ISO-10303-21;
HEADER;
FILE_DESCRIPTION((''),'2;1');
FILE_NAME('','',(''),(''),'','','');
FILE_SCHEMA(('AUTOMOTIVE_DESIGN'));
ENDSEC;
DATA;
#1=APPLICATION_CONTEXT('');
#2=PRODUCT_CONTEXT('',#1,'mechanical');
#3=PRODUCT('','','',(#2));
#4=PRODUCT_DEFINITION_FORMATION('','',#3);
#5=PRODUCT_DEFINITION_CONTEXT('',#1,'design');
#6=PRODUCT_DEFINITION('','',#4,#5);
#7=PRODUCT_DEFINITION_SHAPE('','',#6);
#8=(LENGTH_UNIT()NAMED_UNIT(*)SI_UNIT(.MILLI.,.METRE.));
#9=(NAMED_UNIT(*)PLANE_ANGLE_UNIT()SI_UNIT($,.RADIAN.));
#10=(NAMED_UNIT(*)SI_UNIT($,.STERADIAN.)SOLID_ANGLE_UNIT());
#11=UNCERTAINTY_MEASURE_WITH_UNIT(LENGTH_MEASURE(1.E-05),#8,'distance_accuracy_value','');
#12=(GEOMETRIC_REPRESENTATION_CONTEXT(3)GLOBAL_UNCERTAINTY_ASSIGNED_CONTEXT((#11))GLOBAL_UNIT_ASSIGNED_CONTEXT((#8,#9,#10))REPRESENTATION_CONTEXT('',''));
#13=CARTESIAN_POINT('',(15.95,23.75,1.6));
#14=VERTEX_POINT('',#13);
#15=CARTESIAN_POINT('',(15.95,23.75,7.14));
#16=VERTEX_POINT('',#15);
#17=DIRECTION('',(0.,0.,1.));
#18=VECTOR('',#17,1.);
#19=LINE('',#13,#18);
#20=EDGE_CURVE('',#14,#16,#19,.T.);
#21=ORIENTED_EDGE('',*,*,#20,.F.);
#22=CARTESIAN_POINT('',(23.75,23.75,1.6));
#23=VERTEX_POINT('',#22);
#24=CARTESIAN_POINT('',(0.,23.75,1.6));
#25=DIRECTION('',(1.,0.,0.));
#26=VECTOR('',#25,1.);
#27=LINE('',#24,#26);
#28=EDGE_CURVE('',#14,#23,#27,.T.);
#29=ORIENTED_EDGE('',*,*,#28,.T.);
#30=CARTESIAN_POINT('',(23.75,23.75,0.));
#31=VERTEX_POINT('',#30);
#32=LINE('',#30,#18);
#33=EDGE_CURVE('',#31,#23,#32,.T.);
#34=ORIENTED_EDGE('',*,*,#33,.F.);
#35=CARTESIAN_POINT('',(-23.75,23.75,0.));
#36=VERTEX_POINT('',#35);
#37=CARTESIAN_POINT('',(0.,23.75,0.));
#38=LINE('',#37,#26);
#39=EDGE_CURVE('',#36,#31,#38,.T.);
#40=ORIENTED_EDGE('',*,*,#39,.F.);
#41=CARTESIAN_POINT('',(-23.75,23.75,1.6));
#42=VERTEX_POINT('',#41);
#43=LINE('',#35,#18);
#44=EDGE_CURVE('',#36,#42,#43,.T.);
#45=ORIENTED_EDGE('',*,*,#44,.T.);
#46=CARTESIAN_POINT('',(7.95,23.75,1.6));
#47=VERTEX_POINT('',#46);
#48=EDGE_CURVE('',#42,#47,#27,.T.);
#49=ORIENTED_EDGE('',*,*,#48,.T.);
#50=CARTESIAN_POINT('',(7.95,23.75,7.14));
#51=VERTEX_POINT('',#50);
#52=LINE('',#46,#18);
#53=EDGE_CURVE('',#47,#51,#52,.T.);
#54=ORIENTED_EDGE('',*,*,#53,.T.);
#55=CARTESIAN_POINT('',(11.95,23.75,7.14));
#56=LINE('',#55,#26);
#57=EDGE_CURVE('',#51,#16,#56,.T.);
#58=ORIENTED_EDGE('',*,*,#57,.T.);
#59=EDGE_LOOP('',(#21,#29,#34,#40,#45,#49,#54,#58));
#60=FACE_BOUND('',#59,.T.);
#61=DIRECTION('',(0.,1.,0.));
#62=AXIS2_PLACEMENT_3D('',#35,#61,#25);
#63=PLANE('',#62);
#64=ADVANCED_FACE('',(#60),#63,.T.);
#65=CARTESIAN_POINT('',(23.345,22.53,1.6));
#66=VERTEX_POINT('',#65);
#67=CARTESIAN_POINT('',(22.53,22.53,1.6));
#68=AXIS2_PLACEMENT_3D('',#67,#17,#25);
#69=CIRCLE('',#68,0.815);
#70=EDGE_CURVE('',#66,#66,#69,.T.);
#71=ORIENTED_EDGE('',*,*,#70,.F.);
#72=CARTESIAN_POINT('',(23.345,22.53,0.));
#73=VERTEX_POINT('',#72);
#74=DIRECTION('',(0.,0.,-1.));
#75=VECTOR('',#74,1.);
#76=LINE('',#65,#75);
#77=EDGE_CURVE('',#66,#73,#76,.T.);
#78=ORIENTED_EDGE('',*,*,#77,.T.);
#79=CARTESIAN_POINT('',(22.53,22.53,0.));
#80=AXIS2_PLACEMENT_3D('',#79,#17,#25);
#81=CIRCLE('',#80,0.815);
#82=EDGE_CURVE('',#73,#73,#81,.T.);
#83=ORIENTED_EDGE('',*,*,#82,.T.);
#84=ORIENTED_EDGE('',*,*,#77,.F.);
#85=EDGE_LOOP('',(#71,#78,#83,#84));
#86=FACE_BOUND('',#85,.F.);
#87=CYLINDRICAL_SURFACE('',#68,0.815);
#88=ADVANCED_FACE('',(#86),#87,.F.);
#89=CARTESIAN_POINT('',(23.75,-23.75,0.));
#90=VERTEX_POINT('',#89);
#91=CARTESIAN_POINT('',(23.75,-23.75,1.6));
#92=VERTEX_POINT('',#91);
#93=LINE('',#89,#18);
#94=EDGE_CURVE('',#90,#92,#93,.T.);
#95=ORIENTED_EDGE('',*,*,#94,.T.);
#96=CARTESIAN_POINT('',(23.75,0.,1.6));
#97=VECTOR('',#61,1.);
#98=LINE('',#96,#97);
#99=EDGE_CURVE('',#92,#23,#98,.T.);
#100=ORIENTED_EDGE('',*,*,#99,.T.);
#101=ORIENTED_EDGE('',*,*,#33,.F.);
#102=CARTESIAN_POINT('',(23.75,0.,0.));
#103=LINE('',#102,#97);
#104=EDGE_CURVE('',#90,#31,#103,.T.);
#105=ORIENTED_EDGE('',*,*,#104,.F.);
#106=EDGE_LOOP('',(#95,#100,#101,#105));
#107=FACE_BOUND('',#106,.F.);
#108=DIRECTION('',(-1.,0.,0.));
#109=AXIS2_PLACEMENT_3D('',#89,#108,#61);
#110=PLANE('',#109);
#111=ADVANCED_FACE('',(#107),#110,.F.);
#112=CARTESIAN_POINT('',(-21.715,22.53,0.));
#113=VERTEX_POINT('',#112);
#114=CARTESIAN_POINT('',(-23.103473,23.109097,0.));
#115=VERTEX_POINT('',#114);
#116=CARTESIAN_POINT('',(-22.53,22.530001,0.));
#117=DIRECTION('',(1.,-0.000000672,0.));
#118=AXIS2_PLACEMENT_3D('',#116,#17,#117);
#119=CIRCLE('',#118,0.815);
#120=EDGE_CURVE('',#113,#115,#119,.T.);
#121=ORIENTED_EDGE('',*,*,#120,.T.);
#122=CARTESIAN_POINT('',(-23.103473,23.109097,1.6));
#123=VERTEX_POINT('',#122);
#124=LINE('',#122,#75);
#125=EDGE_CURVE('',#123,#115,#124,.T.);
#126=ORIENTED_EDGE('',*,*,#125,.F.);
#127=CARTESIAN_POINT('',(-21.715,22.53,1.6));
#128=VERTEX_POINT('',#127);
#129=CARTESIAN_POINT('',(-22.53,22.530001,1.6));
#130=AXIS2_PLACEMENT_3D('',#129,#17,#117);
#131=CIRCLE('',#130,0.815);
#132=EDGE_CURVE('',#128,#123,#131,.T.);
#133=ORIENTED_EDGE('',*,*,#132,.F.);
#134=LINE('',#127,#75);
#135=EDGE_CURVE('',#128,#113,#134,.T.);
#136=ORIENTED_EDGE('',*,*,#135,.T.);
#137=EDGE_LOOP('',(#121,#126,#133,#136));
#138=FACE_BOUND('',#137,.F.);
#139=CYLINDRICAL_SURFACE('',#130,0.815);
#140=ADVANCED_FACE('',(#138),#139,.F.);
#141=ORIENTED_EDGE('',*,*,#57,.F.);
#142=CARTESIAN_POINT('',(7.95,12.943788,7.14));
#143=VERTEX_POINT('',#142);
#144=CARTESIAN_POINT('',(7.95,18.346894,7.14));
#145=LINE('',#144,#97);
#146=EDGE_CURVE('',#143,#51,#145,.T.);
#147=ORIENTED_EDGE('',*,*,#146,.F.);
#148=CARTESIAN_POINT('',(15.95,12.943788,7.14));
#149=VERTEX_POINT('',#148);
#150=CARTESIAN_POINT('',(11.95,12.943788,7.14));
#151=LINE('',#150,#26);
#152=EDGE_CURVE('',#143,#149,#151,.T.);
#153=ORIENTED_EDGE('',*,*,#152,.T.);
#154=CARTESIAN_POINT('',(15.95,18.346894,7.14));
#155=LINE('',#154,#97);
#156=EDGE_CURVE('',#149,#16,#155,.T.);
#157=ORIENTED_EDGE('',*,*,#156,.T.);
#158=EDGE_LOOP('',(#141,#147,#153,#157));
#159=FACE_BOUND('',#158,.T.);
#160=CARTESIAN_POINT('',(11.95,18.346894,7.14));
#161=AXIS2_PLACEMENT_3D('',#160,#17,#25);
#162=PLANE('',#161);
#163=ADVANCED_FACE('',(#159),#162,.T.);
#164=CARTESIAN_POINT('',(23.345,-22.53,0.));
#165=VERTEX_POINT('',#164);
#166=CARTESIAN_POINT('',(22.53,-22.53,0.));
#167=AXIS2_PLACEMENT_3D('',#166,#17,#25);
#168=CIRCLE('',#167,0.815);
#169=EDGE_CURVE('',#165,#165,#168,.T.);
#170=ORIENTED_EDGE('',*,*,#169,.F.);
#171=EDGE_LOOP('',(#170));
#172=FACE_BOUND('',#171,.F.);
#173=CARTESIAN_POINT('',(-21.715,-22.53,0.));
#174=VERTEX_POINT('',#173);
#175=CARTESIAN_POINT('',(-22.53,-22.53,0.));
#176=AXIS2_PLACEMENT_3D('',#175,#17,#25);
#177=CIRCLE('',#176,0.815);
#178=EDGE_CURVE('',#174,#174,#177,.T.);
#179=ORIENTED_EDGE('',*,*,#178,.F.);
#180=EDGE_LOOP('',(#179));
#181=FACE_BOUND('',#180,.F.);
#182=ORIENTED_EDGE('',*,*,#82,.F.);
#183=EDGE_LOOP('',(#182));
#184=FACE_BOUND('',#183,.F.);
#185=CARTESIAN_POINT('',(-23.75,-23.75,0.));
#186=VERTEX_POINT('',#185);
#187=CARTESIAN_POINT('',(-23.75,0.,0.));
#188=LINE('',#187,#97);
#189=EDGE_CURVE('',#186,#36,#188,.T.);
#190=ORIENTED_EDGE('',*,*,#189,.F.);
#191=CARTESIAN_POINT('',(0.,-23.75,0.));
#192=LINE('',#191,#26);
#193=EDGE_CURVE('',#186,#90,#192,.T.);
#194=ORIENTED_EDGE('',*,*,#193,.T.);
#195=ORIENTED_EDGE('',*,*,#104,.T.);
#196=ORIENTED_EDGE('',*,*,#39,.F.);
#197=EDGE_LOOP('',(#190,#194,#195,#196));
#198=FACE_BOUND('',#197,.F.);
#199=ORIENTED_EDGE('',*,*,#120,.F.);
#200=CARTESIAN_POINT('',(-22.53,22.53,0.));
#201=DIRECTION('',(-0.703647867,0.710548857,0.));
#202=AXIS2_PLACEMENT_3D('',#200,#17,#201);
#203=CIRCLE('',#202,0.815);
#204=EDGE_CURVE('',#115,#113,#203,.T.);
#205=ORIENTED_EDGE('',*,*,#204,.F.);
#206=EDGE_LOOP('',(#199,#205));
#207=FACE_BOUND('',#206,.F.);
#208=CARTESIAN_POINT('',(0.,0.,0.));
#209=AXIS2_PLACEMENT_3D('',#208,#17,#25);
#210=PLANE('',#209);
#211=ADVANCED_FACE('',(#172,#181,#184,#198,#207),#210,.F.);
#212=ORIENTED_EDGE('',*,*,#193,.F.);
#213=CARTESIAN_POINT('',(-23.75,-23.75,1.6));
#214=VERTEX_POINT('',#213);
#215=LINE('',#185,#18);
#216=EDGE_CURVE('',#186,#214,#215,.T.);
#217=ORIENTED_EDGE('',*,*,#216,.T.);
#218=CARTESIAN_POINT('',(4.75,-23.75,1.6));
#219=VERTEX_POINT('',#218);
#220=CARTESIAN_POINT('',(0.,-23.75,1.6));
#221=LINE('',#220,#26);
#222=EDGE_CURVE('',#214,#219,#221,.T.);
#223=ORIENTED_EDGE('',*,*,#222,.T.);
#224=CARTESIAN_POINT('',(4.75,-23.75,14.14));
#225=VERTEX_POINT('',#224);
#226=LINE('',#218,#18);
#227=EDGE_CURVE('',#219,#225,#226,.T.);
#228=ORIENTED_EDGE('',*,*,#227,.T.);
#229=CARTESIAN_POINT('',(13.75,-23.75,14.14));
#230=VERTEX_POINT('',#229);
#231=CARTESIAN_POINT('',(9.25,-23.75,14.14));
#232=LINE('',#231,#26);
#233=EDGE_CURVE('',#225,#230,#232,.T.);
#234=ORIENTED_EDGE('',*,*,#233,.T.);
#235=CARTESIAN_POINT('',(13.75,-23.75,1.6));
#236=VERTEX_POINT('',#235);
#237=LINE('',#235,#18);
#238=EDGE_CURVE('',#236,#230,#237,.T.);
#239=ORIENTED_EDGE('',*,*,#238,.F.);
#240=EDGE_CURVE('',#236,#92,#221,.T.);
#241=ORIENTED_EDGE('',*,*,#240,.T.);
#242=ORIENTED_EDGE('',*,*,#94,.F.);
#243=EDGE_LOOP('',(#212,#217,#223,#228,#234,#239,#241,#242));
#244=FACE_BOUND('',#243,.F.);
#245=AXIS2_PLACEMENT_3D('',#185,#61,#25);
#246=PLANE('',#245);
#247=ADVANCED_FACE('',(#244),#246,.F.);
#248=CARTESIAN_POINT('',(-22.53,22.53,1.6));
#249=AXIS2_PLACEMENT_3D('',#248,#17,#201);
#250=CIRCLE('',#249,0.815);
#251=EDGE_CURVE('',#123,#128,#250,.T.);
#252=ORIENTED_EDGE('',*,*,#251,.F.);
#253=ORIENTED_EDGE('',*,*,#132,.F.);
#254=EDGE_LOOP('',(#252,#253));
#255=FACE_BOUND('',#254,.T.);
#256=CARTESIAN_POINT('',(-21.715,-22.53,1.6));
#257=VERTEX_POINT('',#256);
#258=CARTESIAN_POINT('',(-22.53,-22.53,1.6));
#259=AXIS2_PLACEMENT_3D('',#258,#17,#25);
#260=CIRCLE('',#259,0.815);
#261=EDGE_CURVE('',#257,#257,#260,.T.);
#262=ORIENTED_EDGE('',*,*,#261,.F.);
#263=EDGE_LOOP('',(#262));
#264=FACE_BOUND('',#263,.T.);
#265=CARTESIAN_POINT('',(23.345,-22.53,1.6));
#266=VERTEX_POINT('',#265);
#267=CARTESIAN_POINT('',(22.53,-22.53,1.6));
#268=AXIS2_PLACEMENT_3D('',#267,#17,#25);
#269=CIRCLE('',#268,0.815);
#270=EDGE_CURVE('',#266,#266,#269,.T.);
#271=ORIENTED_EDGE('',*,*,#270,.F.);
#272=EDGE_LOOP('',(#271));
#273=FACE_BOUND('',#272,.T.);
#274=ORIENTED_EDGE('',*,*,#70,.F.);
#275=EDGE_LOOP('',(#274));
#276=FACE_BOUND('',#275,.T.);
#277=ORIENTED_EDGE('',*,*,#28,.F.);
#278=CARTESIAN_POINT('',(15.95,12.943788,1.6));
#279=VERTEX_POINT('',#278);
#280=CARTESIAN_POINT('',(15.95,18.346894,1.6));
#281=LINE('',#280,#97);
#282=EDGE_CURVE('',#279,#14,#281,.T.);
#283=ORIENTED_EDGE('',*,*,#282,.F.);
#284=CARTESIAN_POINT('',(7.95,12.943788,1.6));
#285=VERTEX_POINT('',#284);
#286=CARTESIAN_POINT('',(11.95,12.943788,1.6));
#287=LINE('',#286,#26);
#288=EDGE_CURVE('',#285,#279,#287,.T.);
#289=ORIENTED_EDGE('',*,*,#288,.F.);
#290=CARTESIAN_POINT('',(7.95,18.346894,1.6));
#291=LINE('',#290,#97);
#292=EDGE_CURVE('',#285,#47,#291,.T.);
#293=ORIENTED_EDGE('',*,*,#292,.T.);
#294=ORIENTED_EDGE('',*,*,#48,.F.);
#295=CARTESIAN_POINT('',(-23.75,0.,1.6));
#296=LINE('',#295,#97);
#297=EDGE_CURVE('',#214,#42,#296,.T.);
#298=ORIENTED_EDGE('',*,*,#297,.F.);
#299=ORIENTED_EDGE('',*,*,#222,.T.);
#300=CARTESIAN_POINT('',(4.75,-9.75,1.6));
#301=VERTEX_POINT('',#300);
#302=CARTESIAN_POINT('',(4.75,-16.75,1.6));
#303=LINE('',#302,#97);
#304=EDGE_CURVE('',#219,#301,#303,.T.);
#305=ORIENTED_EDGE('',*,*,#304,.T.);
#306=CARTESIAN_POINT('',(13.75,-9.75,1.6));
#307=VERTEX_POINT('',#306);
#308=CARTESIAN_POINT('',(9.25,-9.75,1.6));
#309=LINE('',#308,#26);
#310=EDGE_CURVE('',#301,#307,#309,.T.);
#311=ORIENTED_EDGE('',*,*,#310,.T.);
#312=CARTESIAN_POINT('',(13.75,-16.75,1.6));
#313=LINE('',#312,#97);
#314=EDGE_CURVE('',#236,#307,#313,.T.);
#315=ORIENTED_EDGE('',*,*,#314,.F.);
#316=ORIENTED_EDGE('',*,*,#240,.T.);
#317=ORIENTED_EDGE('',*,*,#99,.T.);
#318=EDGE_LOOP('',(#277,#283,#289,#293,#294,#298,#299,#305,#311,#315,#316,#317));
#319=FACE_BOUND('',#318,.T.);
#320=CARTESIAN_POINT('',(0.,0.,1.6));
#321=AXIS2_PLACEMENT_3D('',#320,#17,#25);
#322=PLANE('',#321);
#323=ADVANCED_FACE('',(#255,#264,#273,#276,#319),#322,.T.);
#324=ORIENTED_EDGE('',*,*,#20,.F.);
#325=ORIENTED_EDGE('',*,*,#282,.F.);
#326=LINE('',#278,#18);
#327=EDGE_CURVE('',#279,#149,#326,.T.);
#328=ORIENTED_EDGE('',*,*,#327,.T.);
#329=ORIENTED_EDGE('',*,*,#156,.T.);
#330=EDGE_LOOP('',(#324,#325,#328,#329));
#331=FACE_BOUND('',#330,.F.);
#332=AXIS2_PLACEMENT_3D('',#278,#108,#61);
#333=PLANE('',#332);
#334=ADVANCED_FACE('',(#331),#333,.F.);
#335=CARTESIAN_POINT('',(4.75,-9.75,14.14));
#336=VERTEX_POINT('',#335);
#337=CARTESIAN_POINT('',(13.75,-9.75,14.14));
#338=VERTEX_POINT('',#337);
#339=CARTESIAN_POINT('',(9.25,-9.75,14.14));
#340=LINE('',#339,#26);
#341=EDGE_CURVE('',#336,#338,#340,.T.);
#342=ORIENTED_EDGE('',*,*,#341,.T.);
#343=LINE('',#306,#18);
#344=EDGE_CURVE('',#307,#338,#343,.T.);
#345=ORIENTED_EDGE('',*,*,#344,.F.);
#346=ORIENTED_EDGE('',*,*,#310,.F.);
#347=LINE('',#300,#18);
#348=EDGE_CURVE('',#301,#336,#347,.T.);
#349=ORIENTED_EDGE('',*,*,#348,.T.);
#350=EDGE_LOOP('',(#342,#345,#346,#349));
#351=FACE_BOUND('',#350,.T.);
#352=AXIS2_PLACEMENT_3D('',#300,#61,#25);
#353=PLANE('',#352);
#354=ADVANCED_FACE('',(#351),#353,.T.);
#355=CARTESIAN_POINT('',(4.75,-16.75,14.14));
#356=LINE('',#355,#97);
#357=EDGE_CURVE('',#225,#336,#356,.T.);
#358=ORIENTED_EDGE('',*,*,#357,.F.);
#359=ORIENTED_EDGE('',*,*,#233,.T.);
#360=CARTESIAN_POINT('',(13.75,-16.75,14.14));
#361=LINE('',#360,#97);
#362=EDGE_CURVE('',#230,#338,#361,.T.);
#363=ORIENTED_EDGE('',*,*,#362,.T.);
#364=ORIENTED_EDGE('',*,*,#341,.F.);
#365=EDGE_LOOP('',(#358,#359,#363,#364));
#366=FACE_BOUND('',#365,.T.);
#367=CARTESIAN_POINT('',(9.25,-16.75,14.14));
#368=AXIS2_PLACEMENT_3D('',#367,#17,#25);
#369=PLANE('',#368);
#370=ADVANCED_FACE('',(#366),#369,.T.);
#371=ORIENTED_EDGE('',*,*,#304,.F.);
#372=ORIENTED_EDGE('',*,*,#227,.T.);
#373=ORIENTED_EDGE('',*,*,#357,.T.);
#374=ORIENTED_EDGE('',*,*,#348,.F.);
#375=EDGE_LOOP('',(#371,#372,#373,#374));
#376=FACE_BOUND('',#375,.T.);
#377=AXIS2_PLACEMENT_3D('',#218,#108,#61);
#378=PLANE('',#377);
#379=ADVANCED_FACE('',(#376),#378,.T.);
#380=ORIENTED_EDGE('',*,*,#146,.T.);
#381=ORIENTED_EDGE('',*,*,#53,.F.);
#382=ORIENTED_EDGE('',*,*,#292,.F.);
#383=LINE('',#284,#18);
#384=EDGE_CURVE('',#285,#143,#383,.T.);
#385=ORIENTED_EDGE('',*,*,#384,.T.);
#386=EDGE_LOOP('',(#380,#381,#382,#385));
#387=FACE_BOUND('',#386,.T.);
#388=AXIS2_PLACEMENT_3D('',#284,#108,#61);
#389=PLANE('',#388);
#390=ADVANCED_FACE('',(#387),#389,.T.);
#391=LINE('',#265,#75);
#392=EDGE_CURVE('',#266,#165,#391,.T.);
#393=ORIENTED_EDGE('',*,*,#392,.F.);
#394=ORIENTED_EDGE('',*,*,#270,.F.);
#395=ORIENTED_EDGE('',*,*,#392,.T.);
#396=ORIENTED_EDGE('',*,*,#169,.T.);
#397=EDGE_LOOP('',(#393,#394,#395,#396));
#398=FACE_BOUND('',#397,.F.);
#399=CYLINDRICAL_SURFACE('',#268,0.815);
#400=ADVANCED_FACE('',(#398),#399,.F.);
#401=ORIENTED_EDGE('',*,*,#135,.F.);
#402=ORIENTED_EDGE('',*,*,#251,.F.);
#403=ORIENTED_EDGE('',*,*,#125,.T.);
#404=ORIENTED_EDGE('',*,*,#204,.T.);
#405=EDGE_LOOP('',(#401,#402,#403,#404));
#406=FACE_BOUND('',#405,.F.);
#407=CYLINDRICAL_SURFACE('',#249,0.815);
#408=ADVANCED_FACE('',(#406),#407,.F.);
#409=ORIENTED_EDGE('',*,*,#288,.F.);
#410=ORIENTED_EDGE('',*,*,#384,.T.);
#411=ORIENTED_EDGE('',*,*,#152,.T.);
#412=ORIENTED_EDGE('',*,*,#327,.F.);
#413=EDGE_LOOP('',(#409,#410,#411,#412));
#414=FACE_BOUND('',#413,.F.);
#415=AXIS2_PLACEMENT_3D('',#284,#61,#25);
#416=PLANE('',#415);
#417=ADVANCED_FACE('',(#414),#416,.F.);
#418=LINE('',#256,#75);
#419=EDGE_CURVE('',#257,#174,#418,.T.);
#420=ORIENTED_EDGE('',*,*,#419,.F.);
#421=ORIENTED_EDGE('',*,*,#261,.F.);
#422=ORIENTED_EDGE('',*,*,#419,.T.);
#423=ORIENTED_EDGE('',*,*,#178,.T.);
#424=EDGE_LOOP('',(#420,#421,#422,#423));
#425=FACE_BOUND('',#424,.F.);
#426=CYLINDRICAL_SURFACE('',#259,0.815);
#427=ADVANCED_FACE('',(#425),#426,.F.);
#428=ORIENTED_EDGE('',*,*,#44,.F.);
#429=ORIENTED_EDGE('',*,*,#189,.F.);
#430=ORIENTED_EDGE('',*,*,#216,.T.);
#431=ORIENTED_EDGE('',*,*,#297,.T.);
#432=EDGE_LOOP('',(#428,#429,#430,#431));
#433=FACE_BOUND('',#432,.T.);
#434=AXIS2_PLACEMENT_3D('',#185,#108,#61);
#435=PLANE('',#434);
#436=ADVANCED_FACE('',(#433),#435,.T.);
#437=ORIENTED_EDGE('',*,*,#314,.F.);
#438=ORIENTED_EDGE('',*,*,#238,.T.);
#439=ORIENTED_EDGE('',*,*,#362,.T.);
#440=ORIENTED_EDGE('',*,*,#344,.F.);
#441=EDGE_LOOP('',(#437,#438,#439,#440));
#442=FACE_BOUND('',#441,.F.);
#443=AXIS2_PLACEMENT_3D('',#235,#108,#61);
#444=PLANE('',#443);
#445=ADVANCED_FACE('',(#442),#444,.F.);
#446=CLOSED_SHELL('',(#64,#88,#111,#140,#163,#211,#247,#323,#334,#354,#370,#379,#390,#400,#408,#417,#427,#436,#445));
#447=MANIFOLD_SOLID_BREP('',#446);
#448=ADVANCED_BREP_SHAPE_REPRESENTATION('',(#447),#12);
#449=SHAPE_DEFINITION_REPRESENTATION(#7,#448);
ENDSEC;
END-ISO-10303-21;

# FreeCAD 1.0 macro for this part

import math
import FreeCAD as App
import Part
import Sketcher
Q = App.Units.Quantity


def add_polygon(sketch, points):
    """Adds a closed chain of lines whose ends are joined by coincident constraints."""
    first, n = sketch.GeometryCount, len(points)
    for a, b in zip(points, points[1:] + points[:1]):
        sketch.addGeometry(Part.LineSegment(App.Vector(*a, 0), App.Vector(*b, 0)), False)
    for i in range(n):
        sketch.addConstraint(Sketcher.Constraint("Coincident", first + i, 2, first + (i + 1) % n, 1))

doc = App.newDocument("Part")
body = doc.addObject("PartDesign::Body", "Body")

sketch1 = body.newObject("Sketcher::SketchObject", "Sketch")
sketch1.AttachmentSupport = (doc.getObject("XY_Plane"), [""])
sketch1.MapMode = "FlatFace"
add_polygon(sketch1, [(-24, 24), (-24, -24), (24, -24), (24, 24)])
sketch1.addConstraint(Sketcher.Constraint("Vertical", 0))
sketch1.addConstraint(Sketcher.Constraint("Horizontal", 1))
sketch1.addConstraint(Sketcher.Constraint("Vertical", 2))
sketch1.addConstraint(Sketcher.Constraint("Horizontal", 3))
sketch1.addConstraint(Sketcher.Constraint("Symmetric", 0, 2, 2, 2, -1, 1))
sketch1.addConstraint(Sketcher.Constraint("Equal", 3, 0))
sketch1.addConstraint(Sketcher.Constraint("DistanceX", 1, 1, 1, 2, Q("47.5 mm")))
pad1 = body.newObject("PartDesign::Pad", "Pad")
pad1.Profile = sketch1
pad1.Length = 1.6

sketch2 = body.newObject("Sketcher::SketchObject", "Sketch001")
sketch2.AttachmentSupport = (doc.getObject("XY_Plane"), [""])
sketch2.MapMode = "FlatFace"
sketch2.AttachmentOffset = App.Placement(App.Vector(0, 0, 1.6), App.Rotation())
add_polygon(sketch2, [(5, -10), (5, -24), (14, -24), (14, -10)])
sketch2.addConstraint(Sketcher.Constraint("Vertical", 0))
sketch2.addConstraint(Sketcher.Constraint("Horizontal", 1))
sketch2.addConstraint(Sketcher.Constraint("Vertical", 2))
sketch2.addConstraint(Sketcher.Constraint("Horizontal", 3))
sketch2.addConstraint(Sketcher.Constraint("DistanceX", 1, 1, 1, 2, Q("9 mm")))
sketch2.addConstraint(Sketcher.Constraint("DistanceY", 0, 2, 0, 1, Q("14 mm")))
sketch2.addConstraint(Sketcher.Constraint("DistanceX", -1, 1, 0, 2, Q("4.75 mm")))
sketch2.addConstraint(Sketcher.Constraint("DistanceY", 0, 2, -1, 1, Q("23.75 mm")))
pad2 = body.newObject("PartDesign::Pad", "Pad001")
pad2.Profile = sketch2
pad2.Length = 12.54

sketch3 = body.newObject("Sketcher::SketchObject", "Sketch002")
sketch3.AttachmentSupport = (doc.getObject("XY_Plane"), [""])
sketch3.MapMode = "FlatFace"
sketch3.AttachmentOffset = App.Placement(App.Vector(0, 0, 1.6), App.Rotation())
add_polygon(sketch3, [(8, 24), (8, 13), (16, 13), (16, 24)])
sketch3.addConstraint(Sketcher.Constraint("Vertical", 0))
sketch3.addConstraint(Sketcher.Constraint("Horizontal", 1))
sketch3.addConstraint(Sketcher.Constraint("Vertical", 2))
sketch3.addConstraint(Sketcher.Constraint("Horizontal", 3))
sketch3.addConstraint(Sketcher.Constraint("DistanceX", 1, 1, 1, 2, Q("8 mm")))
sketch3.addConstraint(Sketcher.Constraint("DistanceX", -1, 1, 0, 2, Q("7.95 mm")))
sketch3.addConstraint(Sketcher.Constraint("DistanceY", -1, 1, 2, 2, Q("23.75 mm")))
sketch3.addConstraint(Sketcher.Constraint("DistanceY", 0, 2, 0, 1, Q("10.806212 mm")))
pad3 = body.newObject("PartDesign::Pad", "Pad002")
pad3.Profile = sketch3
pad3.Length = 5.54

sketch4 = body.newObject("Sketcher::SketchObject", "Sketch003")
sketch4.AttachmentSupport = (doc.getObject("XY_Plane"), [""])
sketch4.MapMode = "FlatFace"
sketch4.AttachmentOffset = App.Placement(App.Vector(0, 0, 1.6), App.Rotation())
sketch4.addGeometry(Part.Circle(App.Vector(-22.5, -22.5, 0), App.Vector(0, 0, 1), 0.8), False)
sketch4.addGeometry(Part.Circle(App.Vector(22.5, -22.5, 0), App.Vector(0, 0, 1), 0.8), False)
sketch4.addGeometry(Part.Circle(App.Vector(22.5, 22.5, 0), App.Vector(0, 0, 1), 0.8), False)
sketch4.addGeometry(Part.ArcOfCircle(Part.Circle(App.Vector(-22.5, 22.5, 0), App.Vector(0, 0, 1), 0.8), math.radians(0), math.radians(135)), False)
sketch4.addGeometry(Part.ArcOfCircle(Part.Circle(App.Vector(-22.5, 22.5, 0), App.Vector(0, 0, 1), 0.8), math.radians(135), math.radians(360)), False)
sketch4.addConstraint(Sketcher.Constraint("Tangent", 3, 1, 4, 2))
sketch4.addConstraint(Sketcher.Constraint("Coincident", 4, 1, 3, 2))
sketch4.addConstraint(Sketcher.Constraint("Equal", 0, 1))
sketch4.addConstraint(Sketcher.Constraint("Equal", 1, 2))
sketch4.addConstraint(Sketcher.Constraint("Equal", 2, 3))
sketch4.addConstraint(Sketcher.Constraint("Symmetric", 0, 3, 2, 3, -1, 1))
sketch4.addConstraint(Sketcher.Constraint("Symmetric", 1, 3, 3, 3, -1, 1))
sketch4.addConstraint(Sketcher.Constraint("Symmetric", 0, 3, 1, 3, -2))
sketch4.addConstraint(Sketcher.Constraint("Horizontal", 4, 3, 3, 1))
sketch4.addConstraint(Sketcher.Constraint("Diameter", 0, Q("1.63 mm")))
sketch4.addConstraint(Sketcher.Constraint("DistanceX", 0, 3, -1, 1, Q("22.53 mm")))
sketch4.addConstraint(Sketcher.Constraint("DistanceY", 0, 3, -1, 1, Q("22.53 mm")))
sketch4.addConstraint(Sketcher.Constraint("DistanceX", 4, 1, -1, 1, Q("23.103473 mm")))
pocket1 = body.newObject("PartDesign::Pocket", "Pocket")
pocket1.Profile = sketch4
pocket1.Length = 1.6

doc.recompute()
